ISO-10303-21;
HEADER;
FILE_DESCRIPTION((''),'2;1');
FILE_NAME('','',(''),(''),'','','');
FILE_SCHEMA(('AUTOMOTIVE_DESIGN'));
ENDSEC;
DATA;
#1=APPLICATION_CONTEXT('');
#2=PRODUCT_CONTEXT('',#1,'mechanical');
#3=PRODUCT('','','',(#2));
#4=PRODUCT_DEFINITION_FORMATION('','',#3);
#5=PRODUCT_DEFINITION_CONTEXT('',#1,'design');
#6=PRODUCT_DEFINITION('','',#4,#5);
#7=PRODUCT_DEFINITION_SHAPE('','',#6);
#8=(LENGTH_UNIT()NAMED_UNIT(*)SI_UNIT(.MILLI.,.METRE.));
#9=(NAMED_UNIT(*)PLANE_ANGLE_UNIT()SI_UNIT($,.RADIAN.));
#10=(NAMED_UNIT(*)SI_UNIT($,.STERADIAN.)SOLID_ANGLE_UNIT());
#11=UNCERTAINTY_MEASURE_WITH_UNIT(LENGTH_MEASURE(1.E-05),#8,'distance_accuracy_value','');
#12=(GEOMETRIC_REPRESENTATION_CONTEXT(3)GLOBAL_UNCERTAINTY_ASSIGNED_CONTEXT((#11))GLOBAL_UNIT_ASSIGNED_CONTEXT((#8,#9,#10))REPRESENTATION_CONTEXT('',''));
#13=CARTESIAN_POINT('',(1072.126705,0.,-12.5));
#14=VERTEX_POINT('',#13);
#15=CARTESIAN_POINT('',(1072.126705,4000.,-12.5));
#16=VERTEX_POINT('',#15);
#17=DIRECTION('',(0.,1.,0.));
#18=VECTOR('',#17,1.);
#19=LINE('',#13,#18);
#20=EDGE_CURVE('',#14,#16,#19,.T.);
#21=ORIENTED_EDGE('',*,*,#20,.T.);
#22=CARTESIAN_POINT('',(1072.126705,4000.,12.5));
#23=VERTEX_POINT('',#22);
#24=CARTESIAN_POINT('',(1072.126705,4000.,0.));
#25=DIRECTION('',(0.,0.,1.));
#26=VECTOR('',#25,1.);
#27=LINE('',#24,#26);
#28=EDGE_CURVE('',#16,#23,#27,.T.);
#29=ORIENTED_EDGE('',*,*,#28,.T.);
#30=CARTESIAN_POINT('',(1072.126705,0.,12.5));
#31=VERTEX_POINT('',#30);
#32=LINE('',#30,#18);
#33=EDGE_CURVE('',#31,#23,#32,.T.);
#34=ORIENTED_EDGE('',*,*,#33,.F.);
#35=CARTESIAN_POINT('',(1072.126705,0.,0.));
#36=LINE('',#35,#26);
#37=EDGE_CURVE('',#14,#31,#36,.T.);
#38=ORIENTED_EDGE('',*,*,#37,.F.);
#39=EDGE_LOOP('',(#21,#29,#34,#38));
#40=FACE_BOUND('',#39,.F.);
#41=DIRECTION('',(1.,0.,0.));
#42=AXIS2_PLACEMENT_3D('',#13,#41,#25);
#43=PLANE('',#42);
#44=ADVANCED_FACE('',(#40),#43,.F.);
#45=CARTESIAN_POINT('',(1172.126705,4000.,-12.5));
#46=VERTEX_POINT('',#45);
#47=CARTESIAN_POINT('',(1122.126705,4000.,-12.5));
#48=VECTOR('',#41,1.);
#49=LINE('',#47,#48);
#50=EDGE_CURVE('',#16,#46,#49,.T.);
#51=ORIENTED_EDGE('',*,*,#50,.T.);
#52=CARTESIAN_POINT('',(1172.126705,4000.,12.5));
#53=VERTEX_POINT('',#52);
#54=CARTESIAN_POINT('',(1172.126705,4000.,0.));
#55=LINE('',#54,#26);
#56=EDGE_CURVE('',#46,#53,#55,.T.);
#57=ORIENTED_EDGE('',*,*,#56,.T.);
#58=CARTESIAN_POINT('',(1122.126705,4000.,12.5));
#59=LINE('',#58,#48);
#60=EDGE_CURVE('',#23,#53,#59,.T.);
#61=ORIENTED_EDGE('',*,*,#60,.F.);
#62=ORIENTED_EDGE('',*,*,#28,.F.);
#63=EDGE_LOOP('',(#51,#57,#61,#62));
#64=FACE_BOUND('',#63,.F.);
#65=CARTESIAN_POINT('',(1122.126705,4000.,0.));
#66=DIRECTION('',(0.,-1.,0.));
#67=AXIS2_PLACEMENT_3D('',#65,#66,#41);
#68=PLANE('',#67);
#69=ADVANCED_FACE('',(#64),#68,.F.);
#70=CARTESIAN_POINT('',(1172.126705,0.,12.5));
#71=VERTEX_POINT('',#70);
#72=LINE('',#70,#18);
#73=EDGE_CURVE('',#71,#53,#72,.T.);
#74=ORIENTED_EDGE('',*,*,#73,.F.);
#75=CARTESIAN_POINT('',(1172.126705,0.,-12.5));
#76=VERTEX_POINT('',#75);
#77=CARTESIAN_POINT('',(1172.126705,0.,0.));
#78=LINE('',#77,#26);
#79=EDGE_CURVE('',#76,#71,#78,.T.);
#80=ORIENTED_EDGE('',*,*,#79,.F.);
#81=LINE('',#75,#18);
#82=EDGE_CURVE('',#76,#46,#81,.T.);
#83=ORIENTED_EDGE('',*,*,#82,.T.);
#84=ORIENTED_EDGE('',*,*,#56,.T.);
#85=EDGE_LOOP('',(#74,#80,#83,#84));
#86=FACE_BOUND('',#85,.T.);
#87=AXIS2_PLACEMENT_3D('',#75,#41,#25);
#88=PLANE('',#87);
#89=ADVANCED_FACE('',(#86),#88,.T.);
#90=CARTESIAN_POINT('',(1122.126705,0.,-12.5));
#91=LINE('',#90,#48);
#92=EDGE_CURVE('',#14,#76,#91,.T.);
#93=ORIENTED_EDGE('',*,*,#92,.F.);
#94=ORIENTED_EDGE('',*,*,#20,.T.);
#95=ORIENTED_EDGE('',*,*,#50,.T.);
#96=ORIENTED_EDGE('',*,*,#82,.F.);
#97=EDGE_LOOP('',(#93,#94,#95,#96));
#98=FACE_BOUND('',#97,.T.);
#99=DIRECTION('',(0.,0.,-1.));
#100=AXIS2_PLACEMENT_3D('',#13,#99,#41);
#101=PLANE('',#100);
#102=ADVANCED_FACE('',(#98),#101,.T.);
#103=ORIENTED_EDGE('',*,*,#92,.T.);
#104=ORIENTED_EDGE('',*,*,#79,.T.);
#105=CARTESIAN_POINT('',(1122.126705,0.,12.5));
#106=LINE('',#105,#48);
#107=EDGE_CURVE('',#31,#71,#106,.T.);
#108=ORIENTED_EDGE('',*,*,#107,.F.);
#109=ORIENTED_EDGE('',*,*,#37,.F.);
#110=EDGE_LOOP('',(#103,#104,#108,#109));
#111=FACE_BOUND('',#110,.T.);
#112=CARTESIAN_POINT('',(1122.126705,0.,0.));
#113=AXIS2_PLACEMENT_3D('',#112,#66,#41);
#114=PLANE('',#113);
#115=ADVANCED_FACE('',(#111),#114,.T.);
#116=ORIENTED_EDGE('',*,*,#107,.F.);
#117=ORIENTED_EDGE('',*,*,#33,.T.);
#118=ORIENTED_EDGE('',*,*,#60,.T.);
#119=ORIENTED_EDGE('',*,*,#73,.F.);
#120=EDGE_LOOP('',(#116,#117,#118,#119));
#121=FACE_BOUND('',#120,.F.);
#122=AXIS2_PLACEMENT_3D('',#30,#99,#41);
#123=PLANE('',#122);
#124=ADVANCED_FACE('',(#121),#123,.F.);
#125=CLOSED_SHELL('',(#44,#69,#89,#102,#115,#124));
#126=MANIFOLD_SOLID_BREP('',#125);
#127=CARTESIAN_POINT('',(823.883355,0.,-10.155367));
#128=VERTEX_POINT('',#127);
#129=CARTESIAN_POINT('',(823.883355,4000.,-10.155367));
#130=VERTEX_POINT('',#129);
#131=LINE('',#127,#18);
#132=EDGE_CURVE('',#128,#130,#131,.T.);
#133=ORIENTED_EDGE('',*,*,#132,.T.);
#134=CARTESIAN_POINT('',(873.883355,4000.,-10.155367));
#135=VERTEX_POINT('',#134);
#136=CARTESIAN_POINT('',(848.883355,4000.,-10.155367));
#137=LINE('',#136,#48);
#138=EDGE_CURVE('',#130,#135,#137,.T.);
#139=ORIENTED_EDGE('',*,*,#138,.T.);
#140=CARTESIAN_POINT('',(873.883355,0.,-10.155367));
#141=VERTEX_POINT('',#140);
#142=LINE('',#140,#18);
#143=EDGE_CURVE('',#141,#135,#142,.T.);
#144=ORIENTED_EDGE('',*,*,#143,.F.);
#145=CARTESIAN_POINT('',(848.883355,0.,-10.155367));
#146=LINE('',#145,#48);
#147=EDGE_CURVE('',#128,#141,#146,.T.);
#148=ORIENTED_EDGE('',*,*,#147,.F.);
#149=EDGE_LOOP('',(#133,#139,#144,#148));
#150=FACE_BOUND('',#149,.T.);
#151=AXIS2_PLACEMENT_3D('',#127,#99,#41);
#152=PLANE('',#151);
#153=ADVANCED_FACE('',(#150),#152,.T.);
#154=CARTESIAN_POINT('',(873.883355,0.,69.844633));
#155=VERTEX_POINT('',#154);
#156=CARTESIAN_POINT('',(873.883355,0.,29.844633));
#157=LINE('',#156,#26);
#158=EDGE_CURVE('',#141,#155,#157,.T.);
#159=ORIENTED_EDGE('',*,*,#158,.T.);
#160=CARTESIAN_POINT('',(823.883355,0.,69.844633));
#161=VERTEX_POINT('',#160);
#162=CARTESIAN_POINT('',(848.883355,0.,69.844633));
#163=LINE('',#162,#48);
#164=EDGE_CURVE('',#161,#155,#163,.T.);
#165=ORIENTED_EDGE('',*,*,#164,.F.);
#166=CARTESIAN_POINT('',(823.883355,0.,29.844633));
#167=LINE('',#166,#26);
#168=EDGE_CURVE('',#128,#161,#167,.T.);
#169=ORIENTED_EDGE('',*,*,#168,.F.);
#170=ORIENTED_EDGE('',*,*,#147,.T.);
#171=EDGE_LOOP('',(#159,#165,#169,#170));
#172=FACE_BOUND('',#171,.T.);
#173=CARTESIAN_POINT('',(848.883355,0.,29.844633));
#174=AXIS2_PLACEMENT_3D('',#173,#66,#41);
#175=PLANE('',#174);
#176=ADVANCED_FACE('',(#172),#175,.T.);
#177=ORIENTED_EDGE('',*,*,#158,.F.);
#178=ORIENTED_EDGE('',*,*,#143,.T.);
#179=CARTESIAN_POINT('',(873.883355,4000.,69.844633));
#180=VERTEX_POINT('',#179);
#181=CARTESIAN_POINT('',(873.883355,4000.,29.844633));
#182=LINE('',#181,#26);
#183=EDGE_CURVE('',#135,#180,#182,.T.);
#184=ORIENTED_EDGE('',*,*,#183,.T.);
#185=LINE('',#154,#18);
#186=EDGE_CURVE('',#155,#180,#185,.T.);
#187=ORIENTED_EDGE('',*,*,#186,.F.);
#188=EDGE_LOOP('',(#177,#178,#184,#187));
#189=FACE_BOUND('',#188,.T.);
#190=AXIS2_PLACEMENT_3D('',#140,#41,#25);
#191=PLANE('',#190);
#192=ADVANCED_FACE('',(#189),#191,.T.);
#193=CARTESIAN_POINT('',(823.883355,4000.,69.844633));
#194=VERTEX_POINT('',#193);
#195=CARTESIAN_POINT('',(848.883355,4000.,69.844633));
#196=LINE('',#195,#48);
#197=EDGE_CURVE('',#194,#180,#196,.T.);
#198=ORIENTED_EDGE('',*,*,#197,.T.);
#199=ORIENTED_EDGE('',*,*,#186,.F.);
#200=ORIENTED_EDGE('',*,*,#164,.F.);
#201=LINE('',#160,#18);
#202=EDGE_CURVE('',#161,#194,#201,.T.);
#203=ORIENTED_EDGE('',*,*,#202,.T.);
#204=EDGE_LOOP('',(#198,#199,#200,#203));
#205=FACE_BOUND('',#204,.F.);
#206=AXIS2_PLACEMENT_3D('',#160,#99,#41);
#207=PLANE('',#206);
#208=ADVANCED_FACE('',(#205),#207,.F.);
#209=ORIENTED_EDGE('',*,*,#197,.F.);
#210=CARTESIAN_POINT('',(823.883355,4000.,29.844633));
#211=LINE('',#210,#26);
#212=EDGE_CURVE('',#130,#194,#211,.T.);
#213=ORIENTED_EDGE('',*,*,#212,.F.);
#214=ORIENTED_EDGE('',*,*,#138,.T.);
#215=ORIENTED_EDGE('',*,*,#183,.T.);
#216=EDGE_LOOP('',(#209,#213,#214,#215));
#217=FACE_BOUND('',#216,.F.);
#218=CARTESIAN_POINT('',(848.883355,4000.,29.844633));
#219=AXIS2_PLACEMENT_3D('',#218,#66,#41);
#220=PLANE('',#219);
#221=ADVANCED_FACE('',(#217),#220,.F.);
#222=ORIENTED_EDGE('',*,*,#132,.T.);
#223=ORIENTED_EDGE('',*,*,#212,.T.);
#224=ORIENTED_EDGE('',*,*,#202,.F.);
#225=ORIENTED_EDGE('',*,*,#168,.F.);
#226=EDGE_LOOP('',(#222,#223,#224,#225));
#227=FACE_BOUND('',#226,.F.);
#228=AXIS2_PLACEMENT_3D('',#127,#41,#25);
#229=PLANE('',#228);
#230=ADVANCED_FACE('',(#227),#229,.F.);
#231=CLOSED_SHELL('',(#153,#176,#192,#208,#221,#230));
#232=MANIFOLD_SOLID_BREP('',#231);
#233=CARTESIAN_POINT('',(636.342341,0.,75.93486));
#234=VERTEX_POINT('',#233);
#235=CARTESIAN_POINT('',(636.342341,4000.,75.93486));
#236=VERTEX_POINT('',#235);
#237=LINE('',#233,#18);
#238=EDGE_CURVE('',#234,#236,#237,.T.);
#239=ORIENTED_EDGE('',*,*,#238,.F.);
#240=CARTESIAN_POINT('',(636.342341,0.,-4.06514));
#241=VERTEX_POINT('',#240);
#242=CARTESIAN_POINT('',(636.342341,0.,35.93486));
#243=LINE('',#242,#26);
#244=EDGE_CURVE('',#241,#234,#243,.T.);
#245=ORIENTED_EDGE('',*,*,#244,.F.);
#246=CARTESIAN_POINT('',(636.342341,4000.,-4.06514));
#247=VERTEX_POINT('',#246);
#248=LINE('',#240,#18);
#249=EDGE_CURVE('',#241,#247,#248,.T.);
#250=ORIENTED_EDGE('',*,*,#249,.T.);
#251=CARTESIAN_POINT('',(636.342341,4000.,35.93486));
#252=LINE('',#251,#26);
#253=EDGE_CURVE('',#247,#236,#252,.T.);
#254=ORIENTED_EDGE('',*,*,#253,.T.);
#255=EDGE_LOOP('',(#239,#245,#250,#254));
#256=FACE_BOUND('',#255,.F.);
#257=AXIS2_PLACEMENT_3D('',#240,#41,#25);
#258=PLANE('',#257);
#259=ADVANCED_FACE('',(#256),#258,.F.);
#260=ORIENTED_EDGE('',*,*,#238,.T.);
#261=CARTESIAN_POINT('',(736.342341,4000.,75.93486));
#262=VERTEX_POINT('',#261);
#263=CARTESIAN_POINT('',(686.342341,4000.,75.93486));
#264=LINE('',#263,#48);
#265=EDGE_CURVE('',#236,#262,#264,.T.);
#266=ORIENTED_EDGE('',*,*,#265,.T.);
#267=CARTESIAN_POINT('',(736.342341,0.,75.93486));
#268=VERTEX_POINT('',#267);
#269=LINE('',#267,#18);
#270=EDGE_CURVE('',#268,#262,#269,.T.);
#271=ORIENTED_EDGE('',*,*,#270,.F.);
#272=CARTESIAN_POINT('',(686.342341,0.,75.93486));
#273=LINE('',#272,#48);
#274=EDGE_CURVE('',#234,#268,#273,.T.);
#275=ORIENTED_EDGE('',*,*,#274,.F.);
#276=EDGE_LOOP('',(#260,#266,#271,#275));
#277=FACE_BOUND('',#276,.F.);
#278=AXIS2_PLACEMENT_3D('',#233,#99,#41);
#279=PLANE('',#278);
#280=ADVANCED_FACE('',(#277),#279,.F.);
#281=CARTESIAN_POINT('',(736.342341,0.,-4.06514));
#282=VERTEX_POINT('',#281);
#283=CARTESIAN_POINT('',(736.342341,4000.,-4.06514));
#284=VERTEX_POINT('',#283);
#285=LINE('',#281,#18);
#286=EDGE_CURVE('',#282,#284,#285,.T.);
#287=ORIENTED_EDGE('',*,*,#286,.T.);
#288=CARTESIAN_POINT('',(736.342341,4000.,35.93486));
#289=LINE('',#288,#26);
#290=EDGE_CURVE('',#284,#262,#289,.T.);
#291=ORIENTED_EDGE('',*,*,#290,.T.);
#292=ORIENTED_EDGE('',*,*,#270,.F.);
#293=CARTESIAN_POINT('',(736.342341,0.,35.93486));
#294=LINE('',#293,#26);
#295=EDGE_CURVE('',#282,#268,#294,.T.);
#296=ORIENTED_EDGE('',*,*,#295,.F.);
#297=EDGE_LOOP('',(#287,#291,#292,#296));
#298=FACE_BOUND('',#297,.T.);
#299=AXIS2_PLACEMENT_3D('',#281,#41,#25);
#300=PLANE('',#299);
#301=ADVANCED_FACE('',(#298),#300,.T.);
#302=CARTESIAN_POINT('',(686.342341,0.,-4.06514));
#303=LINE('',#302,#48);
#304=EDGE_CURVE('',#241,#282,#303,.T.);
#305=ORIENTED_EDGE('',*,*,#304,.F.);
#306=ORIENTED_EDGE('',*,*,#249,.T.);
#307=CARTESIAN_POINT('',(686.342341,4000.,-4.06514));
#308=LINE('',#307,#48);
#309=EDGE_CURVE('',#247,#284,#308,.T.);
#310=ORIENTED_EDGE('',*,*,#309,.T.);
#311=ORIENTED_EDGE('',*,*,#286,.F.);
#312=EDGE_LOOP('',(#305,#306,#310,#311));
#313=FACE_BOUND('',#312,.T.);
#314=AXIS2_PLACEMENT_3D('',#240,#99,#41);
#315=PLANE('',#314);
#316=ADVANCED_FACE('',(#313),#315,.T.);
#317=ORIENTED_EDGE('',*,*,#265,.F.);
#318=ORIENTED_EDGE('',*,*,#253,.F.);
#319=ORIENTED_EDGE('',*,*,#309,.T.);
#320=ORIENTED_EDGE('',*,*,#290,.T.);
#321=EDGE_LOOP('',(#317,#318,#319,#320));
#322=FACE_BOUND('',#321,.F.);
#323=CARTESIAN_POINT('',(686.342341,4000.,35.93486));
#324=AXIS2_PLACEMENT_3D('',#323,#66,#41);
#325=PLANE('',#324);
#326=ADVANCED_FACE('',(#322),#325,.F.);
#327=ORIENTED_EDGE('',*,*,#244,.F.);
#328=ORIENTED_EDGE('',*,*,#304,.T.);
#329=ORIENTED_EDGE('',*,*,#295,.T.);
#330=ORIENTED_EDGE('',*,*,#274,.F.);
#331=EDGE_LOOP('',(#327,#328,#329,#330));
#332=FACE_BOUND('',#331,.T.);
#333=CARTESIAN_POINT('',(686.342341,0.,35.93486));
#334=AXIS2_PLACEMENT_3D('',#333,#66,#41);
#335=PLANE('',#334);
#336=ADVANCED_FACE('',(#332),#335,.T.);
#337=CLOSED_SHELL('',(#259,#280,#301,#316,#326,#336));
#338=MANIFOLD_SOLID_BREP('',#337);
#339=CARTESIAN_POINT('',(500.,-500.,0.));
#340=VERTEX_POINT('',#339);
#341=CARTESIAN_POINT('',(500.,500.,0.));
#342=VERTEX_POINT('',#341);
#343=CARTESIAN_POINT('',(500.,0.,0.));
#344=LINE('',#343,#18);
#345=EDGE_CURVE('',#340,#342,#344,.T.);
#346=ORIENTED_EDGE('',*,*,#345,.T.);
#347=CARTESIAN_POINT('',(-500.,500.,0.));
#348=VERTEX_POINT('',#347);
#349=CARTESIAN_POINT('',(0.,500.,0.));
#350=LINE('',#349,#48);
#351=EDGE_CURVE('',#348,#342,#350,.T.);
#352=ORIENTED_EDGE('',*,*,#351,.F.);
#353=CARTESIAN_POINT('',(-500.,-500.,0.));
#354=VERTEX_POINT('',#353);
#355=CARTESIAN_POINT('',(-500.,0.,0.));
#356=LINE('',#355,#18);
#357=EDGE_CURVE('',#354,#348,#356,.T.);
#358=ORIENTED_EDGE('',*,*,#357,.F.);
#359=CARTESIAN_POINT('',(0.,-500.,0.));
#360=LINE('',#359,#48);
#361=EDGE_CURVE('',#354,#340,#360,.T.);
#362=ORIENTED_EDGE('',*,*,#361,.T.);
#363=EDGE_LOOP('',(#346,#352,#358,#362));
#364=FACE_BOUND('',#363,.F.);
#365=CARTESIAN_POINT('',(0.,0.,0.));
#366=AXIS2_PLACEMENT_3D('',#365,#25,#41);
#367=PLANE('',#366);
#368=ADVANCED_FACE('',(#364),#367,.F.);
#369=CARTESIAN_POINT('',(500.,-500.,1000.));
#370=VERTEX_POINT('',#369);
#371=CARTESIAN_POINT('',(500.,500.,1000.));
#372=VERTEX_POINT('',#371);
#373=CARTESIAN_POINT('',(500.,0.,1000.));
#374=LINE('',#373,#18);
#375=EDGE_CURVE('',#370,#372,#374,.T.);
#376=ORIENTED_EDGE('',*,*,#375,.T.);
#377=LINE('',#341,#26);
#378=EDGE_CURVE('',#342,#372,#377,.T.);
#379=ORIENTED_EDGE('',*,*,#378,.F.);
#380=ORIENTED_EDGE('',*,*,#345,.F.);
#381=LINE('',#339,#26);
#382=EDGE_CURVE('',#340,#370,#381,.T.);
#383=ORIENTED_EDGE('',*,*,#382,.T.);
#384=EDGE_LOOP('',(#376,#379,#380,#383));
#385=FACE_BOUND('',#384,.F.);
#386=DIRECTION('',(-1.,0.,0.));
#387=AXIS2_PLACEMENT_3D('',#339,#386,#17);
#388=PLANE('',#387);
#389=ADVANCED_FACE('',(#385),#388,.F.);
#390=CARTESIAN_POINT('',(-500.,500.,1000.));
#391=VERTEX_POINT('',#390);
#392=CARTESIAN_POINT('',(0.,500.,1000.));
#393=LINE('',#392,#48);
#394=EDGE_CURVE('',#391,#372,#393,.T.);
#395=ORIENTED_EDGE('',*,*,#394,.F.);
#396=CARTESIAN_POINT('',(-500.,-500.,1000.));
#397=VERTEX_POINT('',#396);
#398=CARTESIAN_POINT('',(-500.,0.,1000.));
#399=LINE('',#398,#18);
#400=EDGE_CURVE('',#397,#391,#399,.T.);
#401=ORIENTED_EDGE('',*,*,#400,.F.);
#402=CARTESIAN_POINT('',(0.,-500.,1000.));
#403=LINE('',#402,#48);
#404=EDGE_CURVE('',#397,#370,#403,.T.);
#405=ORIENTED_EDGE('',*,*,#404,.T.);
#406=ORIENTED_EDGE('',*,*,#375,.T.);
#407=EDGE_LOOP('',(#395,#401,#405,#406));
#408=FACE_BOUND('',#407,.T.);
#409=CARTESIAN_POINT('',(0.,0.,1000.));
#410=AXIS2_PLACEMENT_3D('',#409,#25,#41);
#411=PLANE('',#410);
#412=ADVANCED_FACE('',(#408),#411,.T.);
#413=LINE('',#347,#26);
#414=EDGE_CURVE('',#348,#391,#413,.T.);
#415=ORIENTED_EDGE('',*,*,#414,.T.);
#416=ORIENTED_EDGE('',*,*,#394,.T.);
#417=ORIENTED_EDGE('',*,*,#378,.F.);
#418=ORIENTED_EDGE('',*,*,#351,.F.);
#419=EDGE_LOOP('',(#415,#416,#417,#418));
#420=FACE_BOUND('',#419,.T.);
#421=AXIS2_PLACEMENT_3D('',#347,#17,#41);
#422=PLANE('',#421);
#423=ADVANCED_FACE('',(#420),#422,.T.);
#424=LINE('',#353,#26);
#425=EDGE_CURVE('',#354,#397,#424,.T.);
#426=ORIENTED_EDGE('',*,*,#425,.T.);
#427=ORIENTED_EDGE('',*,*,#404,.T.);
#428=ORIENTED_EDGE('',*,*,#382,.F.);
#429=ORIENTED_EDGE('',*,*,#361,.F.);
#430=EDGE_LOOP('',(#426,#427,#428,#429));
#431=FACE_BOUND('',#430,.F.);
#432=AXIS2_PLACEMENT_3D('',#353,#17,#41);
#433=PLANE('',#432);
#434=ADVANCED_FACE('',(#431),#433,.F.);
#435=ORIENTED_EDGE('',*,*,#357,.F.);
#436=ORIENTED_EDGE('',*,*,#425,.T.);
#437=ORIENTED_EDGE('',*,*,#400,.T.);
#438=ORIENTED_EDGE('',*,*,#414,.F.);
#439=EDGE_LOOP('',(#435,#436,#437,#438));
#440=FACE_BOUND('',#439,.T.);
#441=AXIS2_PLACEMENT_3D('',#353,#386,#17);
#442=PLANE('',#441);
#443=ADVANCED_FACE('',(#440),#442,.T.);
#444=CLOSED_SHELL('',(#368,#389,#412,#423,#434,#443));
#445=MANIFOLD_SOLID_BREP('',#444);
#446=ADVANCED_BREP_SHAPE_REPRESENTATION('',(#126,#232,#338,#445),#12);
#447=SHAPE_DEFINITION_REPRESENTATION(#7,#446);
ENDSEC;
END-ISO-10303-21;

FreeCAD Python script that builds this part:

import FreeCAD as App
import Part
import Sketcher

doc = App.newDocument("Part")
params = doc.addObject("Spreadsheet::Sheet", "Params")
for row, (alias, value) in enumerate([
    ("sketch1_width", "1000 mm"),
    ("pad1_length", "1000 mm"),
    ("sketch2_width", "100 mm"),
    ("sketch2_width2", "50 mm"),
    ("sketch2_height", "80 mm"),
    ("sketch2_height2", "25 mm"),
    ("pad2_length", "4000 mm"),
], start=1):
    params.set(f"A{row}", alias)
    params.set(f"B{row}", "=" + value)
    params.setAlias(f"B{row}", alias)

body = doc.addObject("PartDesign::Body", "Body")

sketch1 = body.newObject("Sketcher::SketchObject", "Sketch")
sketch1.AttachmentSupport = (doc.getObject("XY_Plane"), [""])
sketch1.MapMode = "FlatFace"
sketch1.addGeometry(Part.LineSegment(App.Vector(-500, 500, 0), App.Vector(-500, -500, 0)), False)
sketch1.addGeometry(Part.LineSegment(App.Vector(-500, -500, 0), App.Vector(500, -500, 0)), False)
sketch1.addGeometry(Part.LineSegment(App.Vector(500, -500, 0), App.Vector(500, 500, 0)), False)
sketch1.addGeometry(Part.LineSegment(App.Vector(500, 500, 0), App.Vector(-500, 500, 0)), False)
sketch1.addConstraint(Sketcher.Constraint("Coincident", 0, 2, 1, 1))
sketch1.addConstraint(Sketcher.Constraint("Coincident", 1, 2, 2, 1))
sketch1.addConstraint(Sketcher.Constraint("Coincident", 2, 2, 3, 1))
sketch1.addConstraint(Sketcher.Constraint("Coincident", 3, 2, 0, 1))
sketch1.addConstraint(Sketcher.Constraint("Vertical", 0))
sketch1.addConstraint(Sketcher.Constraint("Horizontal", 1))
sketch1.addConstraint(Sketcher.Constraint("Vertical", 2))
sketch1.addConstraint(Sketcher.Constraint("Horizontal", 3))
sketch1.addConstraint(Sketcher.Constraint("Symmetric", 0, 2, 2, 2, -1, 1))
sketch1.addConstraint(Sketcher.Constraint("Equal", 3, 0))
sketch1.addConstraint(Sketcher.Constraint("DistanceX", 1, 1, 1, 2, 1000.0))
sketch1.setExpression("Constraints[10]", "Params.sketch1_width")
pad1 = body.newObject("PartDesign::Pad", "Pad")
pad1.Profile = sketch1
pad1.setExpression("Length", "Params.pad1_length")
body2 = doc.addObject("PartDesign::Body", "Body001")
body2.AllowCompound = True

sketch2 = body2.newObject("Sketcher::SketchObject", "Sketch001")
sketch2.AttachmentSupport = (doc.getObject("XZ_Plane001"), [""])
sketch2.MapMode = "FlatFace"
sketch2.addGeometry(Part.LineSegment(App.Vector(636, 76, 0), App.Vector(636, -4, 0)), False)
sketch2.addGeometry(Part.LineSegment(App.Vector(636, -4, 0), App.Vector(736, -4, 0)), False)
sketch2.addGeometry(Part.LineSegment(App.Vector(736, -4, 0), App.Vector(736, 76, 0)), False)
sketch2.addGeometry(Part.LineSegment(App.Vector(736, 76, 0), App.Vector(636, 76, 0)), False)
sketch2.addGeometry(Part.LineSegment(App.Vector(824, 70, 0), App.Vector(824, -10, 0)), False)
sketch2.addGeometry(Part.LineSegment(App.Vector(824, -10, 0), App.Vector(874, -10, 0)), False)
sketch2.addGeometry(Part.LineSegment(App.Vector(874, -10, 0), App.Vector(874, 70, 0)), False)
sketch2.addGeometry(Part.LineSegment(App.Vector(874, 70, 0), App.Vector(824, 70, 0)), False)
sketch2.addGeometry(Part.LineSegment(App.Vector(1072, 12, 0), App.Vector(1072, -12, 0)), False)
sketch2.addGeometry(Part.LineSegment(App.Vector(1072, -12, 0), App.Vector(1172, -12, 0)), False)
sketch2.addGeometry(Part.LineSegment(App.Vector(1172, -12, 0), App.Vector(1172, 12, 0)), False)
sketch2.addGeometry(Part.LineSegment(App.Vector(1172, 12, 0), App.Vector(1072, 12, 0)), False)
sketch2.addConstraint(Sketcher.Constraint("Coincident", 0, 2, 1, 1))
sketch2.addConstraint(Sketcher.Constraint("Coincident", 1, 2, 2, 1))
sketch2.addConstraint(Sketcher.Constraint("Coincident", 2, 2, 3, 1))
sketch2.addConstraint(Sketcher.Constraint("Coincident", 3, 2, 0, 1))
sketch2.addConstraint(Sketcher.Constraint("Coincident", 4, 2, 5, 1))
sketch2.addConstraint(Sketcher.Constraint("Coincident", 5, 2, 6, 1))
sketch2.addConstraint(Sketcher.Constraint("Coincident", 6, 2, 7, 1))
sketch2.addConstraint(Sketcher.Constraint("Coincident", 7, 2, 4, 1))
sketch2.addConstraint(Sketcher.Constraint("Coincident", 8, 2, 9, 1))
sketch2.addConstraint(Sketcher.Constraint("Coincident", 9, 2, 10, 1))
sketch2.addConstraint(Sketcher.Constraint("Coincident", 10, 2, 11, 1))
sketch2.addConstraint(Sketcher.Constraint("Coincident", 11, 2, 8, 1))
sketch2.addConstraint(Sketcher.Constraint("Vertical", 0))
sketch2.addConstraint(Sketcher.Constraint("Horizontal", 1))
sketch2.addConstraint(Sketcher.Constraint("Vertical", 2))
sketch2.addConstraint(Sketcher.Constraint("Horizontal", 3))
sketch2.addConstraint(Sketcher.Constraint("Vertical", 4))
sketch2.addConstraint(Sketcher.Constraint("Horizontal", 5))
sketch2.addConstraint(Sketcher.Constraint("Vertical", 6))
sketch2.addConstraint(Sketcher.Constraint("Horizontal", 7))
sketch2.addConstraint(Sketcher.Constraint("Vertical", 8))
sketch2.addConstraint(Sketcher.Constraint("Horizontal", 9))
sketch2.addConstraint(Sketcher.Constraint("Vertical", 10))
sketch2.addConstraint(Sketcher.Constraint("Horizontal", 11))
sketch2.addConstraint(Sketcher.Constraint("Equal", 3, 9))
sketch2.addConstraint(Sketcher.Constraint("Equal", 2, 4))
sketch2.addConstraint(Sketcher.Constraint("DistanceX", 1, 1, 1, 2, 100.0))
sketch2.addConstraint(Sketcher.Constraint("DistanceX", 5, 1, 5, 2, 50.0))
sketch2.addConstraint(Sketcher.Constraint("DistanceY", 0, 2, 0, 1, 80.0))
sketch2.addConstraint(Sketcher.Constraint("DistanceY", 8, 2, 8, 1, 25.0))
sketch2.addConstraint(Sketcher.Constraint("DistanceY", 8, 2, -1, 1, 12.5))
sketch2.addConstraint(Sketcher.Constraint("DistanceX", -1, 1, 0, 2, 636.342341))
sketch2.addConstraint(Sketcher.Constraint("DistanceY", 0, 2, -1, 1, 4.06514))
sketch2.addConstraint(Sketcher.Constraint("DistanceX", 5, 2, 8, 2, 198.24335))
sketch2.addConstraint(Sketcher.Constraint("DistanceX", -1, 1, 4, 2, 823.883355))
sketch2.addConstraint(Sketcher.Constraint("DistanceY", 4, 2, -1, 1, 10.155367))
sketch2.setExpression("Constraints[26]", "Params.sketch2_width")
sketch2.setExpression("Constraints[27]", "Params.sketch2_width2")
sketch2.setExpression("Constraints[28]", "Params.sketch2_height")
sketch2.setExpression("Constraints[29]", "Params.sketch2_height2")
pad2 = body2.newObject("PartDesign::Pad", "Pad001")
pad2.Profile = sketch2
pad2.setExpression("Length", "Params.pad2_length")
pad2.Reversed = True

doc.recompute()
